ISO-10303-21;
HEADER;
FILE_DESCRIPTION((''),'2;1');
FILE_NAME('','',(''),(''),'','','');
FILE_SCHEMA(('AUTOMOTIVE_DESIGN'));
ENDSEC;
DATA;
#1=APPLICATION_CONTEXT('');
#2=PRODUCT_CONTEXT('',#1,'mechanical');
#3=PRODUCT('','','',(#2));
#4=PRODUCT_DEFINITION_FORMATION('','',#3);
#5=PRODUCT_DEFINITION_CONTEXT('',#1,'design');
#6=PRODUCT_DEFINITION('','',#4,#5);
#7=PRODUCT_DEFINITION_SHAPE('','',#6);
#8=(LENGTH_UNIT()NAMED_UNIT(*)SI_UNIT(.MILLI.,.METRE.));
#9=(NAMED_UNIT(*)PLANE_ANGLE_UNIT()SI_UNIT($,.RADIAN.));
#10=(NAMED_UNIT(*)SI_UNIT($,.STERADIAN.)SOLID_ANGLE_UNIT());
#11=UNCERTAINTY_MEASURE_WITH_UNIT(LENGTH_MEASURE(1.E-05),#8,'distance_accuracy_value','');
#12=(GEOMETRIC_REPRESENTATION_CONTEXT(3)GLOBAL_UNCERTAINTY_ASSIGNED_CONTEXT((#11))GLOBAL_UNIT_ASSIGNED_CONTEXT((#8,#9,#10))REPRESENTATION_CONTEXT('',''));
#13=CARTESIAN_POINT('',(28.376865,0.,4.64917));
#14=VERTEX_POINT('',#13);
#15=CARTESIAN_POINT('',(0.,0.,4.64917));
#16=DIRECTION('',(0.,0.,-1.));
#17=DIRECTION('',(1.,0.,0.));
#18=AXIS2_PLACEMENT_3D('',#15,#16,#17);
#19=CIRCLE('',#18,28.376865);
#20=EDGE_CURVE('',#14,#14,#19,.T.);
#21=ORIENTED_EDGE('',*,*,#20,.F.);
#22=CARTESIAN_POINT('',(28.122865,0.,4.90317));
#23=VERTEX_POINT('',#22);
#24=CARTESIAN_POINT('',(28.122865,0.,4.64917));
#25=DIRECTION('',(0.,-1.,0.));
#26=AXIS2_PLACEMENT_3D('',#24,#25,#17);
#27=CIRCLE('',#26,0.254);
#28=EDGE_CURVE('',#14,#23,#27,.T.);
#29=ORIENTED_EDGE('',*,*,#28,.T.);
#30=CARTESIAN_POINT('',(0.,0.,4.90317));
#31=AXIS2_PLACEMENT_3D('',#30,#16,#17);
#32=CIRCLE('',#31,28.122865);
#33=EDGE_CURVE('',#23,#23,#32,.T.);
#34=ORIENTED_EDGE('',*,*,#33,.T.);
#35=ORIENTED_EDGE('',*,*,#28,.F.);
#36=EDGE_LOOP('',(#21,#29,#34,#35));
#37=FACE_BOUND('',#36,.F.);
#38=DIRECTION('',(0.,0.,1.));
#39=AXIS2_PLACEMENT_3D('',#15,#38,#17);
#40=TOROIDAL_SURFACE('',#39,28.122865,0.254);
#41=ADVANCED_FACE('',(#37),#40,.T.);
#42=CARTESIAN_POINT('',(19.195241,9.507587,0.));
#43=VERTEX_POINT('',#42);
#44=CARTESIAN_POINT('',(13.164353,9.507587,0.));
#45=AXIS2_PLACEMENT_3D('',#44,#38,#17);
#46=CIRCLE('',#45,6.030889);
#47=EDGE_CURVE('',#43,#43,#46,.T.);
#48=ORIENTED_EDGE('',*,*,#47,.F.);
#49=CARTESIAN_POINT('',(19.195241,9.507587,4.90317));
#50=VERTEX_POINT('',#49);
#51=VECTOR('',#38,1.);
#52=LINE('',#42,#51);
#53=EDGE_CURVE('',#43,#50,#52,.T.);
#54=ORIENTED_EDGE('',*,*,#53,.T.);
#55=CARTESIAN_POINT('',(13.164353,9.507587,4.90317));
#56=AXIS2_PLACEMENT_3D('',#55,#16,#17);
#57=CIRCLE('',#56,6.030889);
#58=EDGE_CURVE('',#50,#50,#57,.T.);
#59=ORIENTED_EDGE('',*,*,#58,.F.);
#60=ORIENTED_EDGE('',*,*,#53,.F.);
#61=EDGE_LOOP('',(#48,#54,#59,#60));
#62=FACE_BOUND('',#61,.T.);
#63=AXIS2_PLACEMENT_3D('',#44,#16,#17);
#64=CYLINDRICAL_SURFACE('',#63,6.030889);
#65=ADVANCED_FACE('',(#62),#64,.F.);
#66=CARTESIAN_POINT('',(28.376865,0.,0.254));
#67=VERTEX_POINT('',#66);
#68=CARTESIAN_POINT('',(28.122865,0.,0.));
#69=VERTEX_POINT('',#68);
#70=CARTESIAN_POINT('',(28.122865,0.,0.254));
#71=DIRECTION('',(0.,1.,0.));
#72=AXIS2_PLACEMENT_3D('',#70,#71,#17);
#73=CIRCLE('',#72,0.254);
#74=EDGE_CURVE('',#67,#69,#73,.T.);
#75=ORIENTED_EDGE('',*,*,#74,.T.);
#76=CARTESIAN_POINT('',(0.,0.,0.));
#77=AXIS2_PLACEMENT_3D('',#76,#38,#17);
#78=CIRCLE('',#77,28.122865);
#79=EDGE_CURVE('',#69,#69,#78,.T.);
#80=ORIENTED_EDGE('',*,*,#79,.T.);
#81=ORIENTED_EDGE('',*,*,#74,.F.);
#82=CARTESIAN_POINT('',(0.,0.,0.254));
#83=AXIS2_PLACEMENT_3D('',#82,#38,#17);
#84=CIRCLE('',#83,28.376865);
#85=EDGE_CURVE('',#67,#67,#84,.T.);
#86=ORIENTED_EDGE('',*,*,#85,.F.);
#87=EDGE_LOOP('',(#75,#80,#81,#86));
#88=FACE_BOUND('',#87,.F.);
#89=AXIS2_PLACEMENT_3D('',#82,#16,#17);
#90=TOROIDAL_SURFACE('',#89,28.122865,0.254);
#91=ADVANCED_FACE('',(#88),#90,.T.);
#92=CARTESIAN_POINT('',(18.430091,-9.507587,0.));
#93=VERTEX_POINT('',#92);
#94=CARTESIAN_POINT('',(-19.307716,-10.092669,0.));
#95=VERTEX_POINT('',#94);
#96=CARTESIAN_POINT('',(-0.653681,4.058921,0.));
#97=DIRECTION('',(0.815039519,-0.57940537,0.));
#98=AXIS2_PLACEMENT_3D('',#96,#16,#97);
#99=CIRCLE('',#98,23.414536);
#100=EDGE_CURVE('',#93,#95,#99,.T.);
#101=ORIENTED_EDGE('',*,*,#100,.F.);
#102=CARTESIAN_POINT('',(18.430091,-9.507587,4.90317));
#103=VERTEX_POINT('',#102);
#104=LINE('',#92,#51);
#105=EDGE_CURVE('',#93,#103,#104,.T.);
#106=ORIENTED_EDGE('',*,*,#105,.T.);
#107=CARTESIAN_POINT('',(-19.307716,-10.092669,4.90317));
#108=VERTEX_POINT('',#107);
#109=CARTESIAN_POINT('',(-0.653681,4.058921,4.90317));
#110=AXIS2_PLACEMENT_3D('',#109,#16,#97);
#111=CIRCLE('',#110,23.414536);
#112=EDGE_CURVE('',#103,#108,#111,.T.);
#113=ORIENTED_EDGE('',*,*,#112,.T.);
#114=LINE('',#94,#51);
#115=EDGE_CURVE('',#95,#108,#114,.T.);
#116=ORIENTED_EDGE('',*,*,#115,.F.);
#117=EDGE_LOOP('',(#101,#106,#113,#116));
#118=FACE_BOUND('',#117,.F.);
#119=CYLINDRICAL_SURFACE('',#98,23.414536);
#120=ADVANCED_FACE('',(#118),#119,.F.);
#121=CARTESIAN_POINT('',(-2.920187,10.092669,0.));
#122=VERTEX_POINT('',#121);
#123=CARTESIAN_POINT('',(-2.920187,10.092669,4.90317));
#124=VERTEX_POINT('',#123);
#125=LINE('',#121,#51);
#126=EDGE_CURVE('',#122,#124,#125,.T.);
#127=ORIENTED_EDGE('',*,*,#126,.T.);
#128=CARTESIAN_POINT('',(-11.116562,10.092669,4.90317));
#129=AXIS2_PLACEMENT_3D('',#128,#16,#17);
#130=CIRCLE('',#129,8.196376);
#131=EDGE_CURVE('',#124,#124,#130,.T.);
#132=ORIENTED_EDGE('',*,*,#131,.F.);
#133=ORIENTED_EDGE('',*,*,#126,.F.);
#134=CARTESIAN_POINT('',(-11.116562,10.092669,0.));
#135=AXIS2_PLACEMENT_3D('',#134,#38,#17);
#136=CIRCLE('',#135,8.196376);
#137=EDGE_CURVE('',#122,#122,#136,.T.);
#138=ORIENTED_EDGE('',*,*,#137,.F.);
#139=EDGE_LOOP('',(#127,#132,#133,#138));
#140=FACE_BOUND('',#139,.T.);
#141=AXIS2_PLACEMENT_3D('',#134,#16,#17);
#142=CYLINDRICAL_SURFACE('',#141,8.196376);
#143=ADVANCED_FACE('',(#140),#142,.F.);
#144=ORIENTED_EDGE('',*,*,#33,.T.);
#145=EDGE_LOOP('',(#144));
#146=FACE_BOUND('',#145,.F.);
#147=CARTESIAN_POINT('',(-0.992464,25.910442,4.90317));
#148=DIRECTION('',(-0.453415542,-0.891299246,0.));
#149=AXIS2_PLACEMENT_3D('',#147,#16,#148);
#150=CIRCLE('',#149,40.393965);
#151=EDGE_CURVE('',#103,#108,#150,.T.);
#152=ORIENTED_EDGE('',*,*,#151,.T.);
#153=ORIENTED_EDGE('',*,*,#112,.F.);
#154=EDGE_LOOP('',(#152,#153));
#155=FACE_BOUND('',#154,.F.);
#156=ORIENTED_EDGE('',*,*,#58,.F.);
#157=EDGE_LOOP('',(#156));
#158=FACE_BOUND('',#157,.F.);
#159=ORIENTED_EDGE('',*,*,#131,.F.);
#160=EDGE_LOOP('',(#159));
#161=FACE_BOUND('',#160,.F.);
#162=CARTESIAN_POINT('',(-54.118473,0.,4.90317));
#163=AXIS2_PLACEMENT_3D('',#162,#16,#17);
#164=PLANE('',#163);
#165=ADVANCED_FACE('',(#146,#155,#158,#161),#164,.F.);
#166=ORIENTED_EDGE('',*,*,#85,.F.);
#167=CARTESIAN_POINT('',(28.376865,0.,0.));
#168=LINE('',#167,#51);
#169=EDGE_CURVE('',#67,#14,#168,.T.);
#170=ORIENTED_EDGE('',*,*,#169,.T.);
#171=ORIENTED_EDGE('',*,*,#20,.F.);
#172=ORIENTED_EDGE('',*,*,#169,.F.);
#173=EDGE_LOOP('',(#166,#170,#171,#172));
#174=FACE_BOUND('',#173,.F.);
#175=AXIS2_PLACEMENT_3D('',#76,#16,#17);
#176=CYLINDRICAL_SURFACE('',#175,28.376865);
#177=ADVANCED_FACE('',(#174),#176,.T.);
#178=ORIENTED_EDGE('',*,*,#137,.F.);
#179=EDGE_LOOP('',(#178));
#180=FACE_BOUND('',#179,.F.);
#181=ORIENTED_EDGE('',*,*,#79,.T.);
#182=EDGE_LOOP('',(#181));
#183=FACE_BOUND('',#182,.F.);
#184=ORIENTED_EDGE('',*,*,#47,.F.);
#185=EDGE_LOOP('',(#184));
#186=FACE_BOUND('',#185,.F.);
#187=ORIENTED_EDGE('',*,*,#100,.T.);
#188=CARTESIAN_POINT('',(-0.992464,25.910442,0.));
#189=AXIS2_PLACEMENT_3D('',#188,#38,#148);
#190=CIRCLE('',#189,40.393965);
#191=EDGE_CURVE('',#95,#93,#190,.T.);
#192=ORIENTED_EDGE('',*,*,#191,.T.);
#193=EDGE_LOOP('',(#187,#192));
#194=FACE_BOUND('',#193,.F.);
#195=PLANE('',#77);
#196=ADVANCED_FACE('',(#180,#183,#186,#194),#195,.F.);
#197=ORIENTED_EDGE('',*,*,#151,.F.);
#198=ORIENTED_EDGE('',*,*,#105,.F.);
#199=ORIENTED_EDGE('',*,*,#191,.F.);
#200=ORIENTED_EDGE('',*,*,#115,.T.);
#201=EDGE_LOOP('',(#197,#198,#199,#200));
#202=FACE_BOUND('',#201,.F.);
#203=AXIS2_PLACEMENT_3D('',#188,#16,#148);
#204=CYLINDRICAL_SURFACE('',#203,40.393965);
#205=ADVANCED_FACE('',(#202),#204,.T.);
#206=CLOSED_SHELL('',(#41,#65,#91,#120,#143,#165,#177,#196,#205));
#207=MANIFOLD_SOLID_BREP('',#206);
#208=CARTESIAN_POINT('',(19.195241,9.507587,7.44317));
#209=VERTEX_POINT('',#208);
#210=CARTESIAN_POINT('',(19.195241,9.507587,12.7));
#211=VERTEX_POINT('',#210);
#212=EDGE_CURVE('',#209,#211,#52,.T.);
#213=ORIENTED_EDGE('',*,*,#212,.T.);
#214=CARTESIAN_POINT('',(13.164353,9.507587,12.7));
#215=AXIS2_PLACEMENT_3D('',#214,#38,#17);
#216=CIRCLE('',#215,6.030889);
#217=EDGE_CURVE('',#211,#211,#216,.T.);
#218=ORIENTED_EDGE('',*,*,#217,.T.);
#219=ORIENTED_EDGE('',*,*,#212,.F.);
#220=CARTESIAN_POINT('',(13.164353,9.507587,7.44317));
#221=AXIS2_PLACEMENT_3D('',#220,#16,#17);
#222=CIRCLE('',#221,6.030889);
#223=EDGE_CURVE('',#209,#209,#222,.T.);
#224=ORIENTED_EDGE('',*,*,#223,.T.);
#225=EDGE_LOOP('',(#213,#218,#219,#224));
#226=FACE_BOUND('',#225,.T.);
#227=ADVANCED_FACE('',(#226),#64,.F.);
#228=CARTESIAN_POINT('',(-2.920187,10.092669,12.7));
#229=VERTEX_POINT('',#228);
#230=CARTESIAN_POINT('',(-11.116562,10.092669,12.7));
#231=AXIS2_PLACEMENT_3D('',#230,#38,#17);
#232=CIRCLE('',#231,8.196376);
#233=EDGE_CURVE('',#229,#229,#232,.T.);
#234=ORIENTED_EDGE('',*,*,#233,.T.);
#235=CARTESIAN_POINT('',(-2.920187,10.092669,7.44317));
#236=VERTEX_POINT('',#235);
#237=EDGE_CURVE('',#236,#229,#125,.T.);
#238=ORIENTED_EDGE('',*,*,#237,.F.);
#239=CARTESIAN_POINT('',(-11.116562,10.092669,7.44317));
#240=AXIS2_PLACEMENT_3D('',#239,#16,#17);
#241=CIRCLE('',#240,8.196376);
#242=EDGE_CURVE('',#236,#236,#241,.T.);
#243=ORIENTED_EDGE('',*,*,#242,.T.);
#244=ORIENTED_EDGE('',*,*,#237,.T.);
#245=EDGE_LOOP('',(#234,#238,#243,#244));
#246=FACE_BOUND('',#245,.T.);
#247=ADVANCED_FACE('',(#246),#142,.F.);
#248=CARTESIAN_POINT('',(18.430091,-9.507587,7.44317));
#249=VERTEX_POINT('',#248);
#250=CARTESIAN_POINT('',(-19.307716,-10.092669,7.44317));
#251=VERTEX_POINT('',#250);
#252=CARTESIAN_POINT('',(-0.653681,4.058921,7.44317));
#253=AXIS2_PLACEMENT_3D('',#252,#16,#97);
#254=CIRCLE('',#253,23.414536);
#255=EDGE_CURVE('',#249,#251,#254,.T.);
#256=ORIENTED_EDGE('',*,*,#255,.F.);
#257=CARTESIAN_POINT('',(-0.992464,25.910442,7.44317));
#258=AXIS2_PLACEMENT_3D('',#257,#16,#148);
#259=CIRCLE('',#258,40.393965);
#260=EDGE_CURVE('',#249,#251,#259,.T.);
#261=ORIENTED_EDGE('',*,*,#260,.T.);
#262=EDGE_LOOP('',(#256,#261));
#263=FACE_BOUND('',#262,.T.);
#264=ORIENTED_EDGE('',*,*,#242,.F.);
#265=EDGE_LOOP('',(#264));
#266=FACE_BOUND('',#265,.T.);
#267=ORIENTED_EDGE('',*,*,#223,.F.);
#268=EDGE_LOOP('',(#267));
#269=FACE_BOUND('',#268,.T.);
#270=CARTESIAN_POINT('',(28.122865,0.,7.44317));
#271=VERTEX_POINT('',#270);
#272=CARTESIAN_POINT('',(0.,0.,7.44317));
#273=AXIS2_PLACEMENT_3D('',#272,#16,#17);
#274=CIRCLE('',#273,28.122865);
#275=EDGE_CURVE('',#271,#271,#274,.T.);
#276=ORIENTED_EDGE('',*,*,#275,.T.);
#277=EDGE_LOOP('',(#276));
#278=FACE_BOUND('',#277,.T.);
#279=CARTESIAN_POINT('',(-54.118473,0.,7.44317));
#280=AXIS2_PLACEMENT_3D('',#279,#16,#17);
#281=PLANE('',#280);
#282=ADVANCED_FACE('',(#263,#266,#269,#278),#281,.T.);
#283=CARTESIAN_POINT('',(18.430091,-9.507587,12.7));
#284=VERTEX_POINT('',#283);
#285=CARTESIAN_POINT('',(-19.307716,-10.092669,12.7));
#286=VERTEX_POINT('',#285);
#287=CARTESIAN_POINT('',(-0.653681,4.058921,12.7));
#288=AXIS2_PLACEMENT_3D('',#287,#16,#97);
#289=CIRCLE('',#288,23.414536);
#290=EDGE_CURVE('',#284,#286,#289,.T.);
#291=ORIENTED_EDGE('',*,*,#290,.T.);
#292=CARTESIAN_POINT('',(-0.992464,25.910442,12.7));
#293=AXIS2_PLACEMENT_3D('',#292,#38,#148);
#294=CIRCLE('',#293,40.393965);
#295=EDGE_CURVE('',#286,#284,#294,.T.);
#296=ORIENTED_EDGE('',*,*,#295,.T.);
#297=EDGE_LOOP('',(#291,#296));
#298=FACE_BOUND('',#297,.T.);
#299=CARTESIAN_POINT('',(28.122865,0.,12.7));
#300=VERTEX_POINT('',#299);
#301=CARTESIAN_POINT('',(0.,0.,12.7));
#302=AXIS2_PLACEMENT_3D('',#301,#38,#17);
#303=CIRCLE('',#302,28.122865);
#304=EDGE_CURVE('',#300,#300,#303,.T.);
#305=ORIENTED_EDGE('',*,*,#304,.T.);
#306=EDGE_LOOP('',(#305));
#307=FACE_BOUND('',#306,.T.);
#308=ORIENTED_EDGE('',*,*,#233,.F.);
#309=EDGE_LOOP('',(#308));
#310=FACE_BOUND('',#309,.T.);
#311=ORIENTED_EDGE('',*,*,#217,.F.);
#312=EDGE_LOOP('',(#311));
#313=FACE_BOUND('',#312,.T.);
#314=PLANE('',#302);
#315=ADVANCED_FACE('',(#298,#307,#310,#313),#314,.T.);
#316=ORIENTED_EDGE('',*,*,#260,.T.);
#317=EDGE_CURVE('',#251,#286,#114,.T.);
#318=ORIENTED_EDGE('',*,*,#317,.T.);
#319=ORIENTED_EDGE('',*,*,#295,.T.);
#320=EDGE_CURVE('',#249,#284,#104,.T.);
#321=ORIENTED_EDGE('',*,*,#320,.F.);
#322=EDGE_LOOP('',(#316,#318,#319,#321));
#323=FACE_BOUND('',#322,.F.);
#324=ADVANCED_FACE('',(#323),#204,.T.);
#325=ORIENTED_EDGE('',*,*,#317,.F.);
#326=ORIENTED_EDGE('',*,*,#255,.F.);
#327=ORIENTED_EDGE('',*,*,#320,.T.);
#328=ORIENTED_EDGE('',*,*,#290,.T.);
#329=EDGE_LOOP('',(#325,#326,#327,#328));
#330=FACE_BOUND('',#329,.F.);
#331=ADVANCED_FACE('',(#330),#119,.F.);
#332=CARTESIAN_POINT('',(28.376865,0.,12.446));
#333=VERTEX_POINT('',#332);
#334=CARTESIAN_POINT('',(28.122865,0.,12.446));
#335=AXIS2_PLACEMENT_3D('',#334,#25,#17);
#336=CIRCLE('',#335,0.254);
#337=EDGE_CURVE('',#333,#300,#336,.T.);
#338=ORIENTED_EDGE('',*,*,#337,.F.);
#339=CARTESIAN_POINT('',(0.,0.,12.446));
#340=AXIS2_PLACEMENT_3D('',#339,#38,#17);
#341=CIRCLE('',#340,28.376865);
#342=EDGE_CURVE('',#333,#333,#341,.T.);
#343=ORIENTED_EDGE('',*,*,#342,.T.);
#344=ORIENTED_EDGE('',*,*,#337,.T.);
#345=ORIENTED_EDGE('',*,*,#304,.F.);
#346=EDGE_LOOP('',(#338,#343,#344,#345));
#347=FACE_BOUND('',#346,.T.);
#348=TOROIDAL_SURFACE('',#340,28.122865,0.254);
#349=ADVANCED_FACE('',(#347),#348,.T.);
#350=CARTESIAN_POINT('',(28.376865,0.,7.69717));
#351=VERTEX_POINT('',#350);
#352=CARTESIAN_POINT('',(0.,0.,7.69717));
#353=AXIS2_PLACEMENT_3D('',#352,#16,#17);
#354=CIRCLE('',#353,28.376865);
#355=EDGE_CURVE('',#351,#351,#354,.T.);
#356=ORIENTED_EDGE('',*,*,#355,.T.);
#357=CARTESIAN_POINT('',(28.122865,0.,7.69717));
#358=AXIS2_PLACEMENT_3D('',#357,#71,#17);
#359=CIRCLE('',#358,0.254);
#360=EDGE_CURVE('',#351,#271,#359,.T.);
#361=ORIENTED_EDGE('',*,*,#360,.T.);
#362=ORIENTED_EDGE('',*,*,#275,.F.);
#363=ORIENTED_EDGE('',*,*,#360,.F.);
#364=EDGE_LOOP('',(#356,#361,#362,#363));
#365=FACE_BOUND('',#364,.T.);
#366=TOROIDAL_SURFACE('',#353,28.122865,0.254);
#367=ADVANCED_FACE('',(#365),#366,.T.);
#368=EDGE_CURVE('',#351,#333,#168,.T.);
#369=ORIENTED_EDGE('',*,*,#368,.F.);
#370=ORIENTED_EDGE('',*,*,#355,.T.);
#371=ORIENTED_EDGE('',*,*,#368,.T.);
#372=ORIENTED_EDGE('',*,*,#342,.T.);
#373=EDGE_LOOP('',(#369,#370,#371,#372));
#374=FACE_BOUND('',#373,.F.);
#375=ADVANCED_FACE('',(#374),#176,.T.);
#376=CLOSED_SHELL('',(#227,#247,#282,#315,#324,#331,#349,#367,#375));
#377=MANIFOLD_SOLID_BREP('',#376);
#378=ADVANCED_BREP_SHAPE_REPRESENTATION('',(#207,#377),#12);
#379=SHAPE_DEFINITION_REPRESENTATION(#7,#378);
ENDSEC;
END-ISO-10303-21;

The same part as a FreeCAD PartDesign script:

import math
import FreeCAD as App
import Part
import Sketcher
from FreeCAD import Vector
Q = App.Units.Quantity


def edges_at(feature, points):
    """Names of the edges that pass closest to the given points."""
    edges = feature.Shape.Edges
    near = lambda p: min(range(len(edges)), key=lambda i: edges[i].distToShape(Part.Vertex(*p))[0])
    return sorted({f"Edge{near(p) + 1}" for p in points})


def add_polygon(sketch, points):
    """Adds a closed chain of lines whose ends are joined by coincident constraints."""
    first, n = sketch.GeometryCount, len(points)
    for a, b in zip(points, points[1:] + points[:1]):
        sketch.addGeometry(Part.LineSegment(App.Vector(*a, 0), App.Vector(*b, 0)), False)
    for i in range(n):
        sketch.addConstraint(Sketcher.Constraint("Coincident", first + i, 2, first + (i + 1) % n, 1))

doc = App.newDocument("Part")
body = doc.addObject("PartDesign::Body", "Body")
body.AllowCompound = True

# Sketch on XY plane
sketch1 = body.newObject("Sketcher::SketchObject", "Sketch")
sketch1.AttachmentSupport = (doc.getObject("XY_Plane"), [""])
sketch1.MapMode = "FlatFace"
sketch1.addGeometry([
    Part.Circle(Vector(0, 0, 0), Vector(0, 0, 1), 28.376865),  # 0
    Part.ArcOfCircle(Part.Circle(Vector(-0.992464, 25.910442, 0), Vector(0, 0, 1), 40.393965), math.radians(-116.963034), math.radians(-61.260496)),  # 1
    Part.ArcOfCircle(Part.Circle(Vector(-0.653681, 4.058921, 0), Vector(0, 0, 1), 23.414536), math.radians(-142.8148), math.radians(-35.40873)),  # 2
    Part.Circle(Vector(-11.116562, 10.092669, 0), Vector(0, 0, 1), 8.196376),  # 3
    Part.Circle(Vector(13.164353, 9.507587, 0), Vector(0, 0, 1), 6.030889),  # 4
], False)
sketch1.addConstraint([
    Sketcher.Constraint("Coincident", 1, 1, 2, 1),
    Sketcher.Constraint("Coincident", 2, 2, 1, 2),
    Sketcher.Constraint("Coincident", 0, 3, -1, 1),
    Sketcher.Constraint("Diameter", 0, Q("56.75373 mm")),
    Sketcher.Constraint("Diameter", 3, Q("16.392751 mm")),
    Sketcher.Constraint("Diameter", 4, Q("12.061777 mm")),
    Sketcher.Constraint("DistanceY", -1, 1, 2, 3, Q("0.1598 in")),
    Sketcher.Constraint("Radius", 1, Q("40.393965 mm")),
    Sketcher.Constraint("Radius", 2, Q("23.414536 mm")),
    Sketcher.Constraint("DistanceX", 3, 3, 1, 3, Q("10.124098 mm")),
    Sketcher.Constraint("DistanceY", -1, 1, 1, 3, Q("25.910442 mm")),
    Sketcher.Constraint("DistanceX", 2, 3, -1, 1, Q("0.653681 mm")),
    Sketcher.Constraint("DistanceY", -1, 1, 3, 3, Q("10.092669 mm")),
    Sketcher.Constraint("DistanceY", 1, 1, -1, 1, Q("10.092669 mm")),
    Sketcher.Constraint("DistanceY", 4, 3, 3, 3, Q("0.585082 mm")),
    Sketcher.Constraint("DistanceX", 1, 1, 4, 3, Q("32.472068 mm")),
])
pad1 = body.newObject("PartDesign::Pad", "Pad")
pad1.Profile = sketch1
pad1.Length = Q("0.5 in")

# Sketch on XZ plane
sketch2 = body.newObject("Sketcher::SketchObject", "Sketch001")
sketch2.AttachmentSupport = (doc.getObject("XZ_Plane"), [""])
sketch2.MapMode = "FlatFace"
add_polygon(sketch2, [(-54.118473, 7.44317), (-54.118473, 4.90317), (56.37154, 4.90317), (56.37154, 7.44317)])  # lines 0-3
sketch2.addConstraint([
    Sketcher.Constraint("Vertical", 0),
    Sketcher.Constraint("Horizontal", 1),
    Sketcher.Constraint("Vertical", 2),
    Sketcher.Constraint("Horizontal", 3),
    Sketcher.Constraint("DistanceY", 0, 2, 0, 1, Q("0.1 in")),
    Sketcher.Constraint("DistanceX", 1, 1, 1, 2, Q("110.490013 mm")),
    Sketcher.Constraint("DistanceY", -1, 1, 0, 2, Q("4.90317 mm")),
    Sketcher.Constraint("DistanceX", -1, 1, 1, 2, Q("56.37154 mm")),
])
pocket1 = body.newObject("PartDesign::Pocket", "Pocket")
pocket1.Profile = sketch2
pocket1.Length = 79.93314
pocket1.Midplane = True
doc.recompute()

fillet = body.newObject("PartDesign::Fillet", "Fillet")
fillet.Base = (pocket1, edges_at(pocket1, [
    (-28.377, 0, 12.7),
    (-28.377, 0, 0),
    (-28.377, 0, 7.443),
    (-28.377, 0, 4.903),
]))
fillet.Radius = Q("0.01 in")

doc.recompute()
